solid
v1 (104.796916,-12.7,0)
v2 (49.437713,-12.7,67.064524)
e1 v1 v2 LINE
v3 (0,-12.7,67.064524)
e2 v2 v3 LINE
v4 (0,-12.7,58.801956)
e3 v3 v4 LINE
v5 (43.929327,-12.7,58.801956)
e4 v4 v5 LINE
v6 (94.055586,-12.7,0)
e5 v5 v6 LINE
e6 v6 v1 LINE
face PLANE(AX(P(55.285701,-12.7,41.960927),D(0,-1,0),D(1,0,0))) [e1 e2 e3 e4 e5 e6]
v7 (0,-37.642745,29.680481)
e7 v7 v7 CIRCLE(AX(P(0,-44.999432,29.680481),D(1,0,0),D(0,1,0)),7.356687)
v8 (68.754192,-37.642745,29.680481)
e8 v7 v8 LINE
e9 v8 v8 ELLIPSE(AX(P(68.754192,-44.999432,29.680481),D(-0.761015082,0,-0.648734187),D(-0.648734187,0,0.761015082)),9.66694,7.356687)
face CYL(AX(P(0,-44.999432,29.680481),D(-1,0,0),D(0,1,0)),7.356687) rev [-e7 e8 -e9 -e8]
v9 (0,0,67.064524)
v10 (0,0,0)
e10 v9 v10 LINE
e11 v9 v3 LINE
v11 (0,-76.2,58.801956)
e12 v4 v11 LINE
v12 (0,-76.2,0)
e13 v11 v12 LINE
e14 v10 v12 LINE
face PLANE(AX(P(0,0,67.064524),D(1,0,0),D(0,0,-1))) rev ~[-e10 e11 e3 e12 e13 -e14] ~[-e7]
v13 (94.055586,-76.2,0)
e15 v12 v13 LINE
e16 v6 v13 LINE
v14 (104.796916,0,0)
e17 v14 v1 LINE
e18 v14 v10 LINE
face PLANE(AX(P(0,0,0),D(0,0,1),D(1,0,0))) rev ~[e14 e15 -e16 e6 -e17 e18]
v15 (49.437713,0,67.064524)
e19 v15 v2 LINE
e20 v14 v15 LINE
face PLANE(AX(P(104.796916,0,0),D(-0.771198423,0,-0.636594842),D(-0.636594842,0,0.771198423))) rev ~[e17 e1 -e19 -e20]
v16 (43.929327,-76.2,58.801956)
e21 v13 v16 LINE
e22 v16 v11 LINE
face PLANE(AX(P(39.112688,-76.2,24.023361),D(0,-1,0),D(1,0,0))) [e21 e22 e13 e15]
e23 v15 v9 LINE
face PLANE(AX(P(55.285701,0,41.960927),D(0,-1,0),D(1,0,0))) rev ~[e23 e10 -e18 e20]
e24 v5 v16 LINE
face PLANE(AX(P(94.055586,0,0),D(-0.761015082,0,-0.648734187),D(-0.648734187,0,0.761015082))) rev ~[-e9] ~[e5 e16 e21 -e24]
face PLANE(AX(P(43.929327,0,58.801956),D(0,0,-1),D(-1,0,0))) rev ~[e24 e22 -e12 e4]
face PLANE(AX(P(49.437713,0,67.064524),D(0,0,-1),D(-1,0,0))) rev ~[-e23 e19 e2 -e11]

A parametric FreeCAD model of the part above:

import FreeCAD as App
import Part
import Sketcher
from FreeCAD import Vector
Q = App.Units.Quantity

doc = App.newDocument("Part")
body = doc.addObject("PartDesign::Body", "Body")

# Sketch on XZ plane
sketch1 = doc.addObject("Sketcher::SketchObject", "Sketch")
body.addObject(sketch1)
sketch1.AttachmentSupport = (doc.XZ_Plane, [""])
sketch1.MapMode = "FlatFace"
sketch1.addGeometry(Part.LineSegment(Vector(0, 59, 0), Vector(0, 0, 0)), False)
sketch1.addGeometry(Part.LineSegment(Vector(0, 0, 0), Vector(94, 0, 0)), False)
sketch1.addGeometry(Part.LineSegment(Vector(94, 0, 0), Vector(44, 59, 0)), False)
sketch1.addGeometry(Part.LineSegment(Vector(44, 59, 0), Vector(0, 59, 0)), False)
sketch1.addConstraint(Sketcher.Constraint("Coincident", 0, 2, 1, 1))
sketch1.addConstraint(Sketcher.Constraint("Coincident", 1, 2, 2, 1))
sketch1.addConstraint(Sketcher.Constraint("Coincident", 2, 2, 3, 1))
sketch1.addConstraint(Sketcher.Constraint("Coincident", 3, 2, 0, 1))
sketch1.addConstraint(Sketcher.Constraint("Vertical", 0))
sketch1.addConstraint(Sketcher.Constraint("Horizontal", 1))
sketch1.addConstraint(Sketcher.Constraint("Horizontal", 3))
sketch1.addConstraint(Sketcher.Constraint("Coincident", 0, 2, -1, 1))
sketch1.addConstraint(Sketcher.Constraint("DistanceX", 1, 1, 1, 2, Q("94.055586 mm")))
sketch1.addConstraint(Sketcher.Constraint("DistanceX", 3, 2, 3, 1, Q("43.929327 mm")))
sketch1.addConstraint(Sketcher.Constraint("DistanceY", 0, 2, 0, 1, Q("58.801956 mm")))
pad1 = doc.addObject("PartDesign::Pad", "Pad")
body.addObject(pad1)
pad1.Profile = sketch1
pad1.Length = Q("3 in")

# Sketch on XZ plane
sketch2 = doc.addObject("Sketcher::SketchObject", "Sketch001")
body.addObject(sketch2)
sketch2.AttachmentSupport = (doc.XZ_Plane, [""])
sketch2.MapMode = "FlatFace"
sketch2.addGeometry(Part.LineSegment(Vector(0, 67, 0), Vector(0, 59, 0)), False)
sketch2.addGeometry(Part.LineSegment(Vector(0, 59, 0), Vector(44, 59, 0)), False)
sketch2.addGeometry(Part.LineSegment(Vector(44, 59, 0), Vector(94, 0, 0)), False)
sketch2.addGeometry(Part.LineSegment(Vector(94, 0, 0), Vector(105, 0, 0)), False)
sketch2.addGeometry(Part.LineSegment(Vector(105, 0, 0), Vector(49, 67, 0)), False)
sketch2.addGeometry(Part.LineSegment(Vector(49, 67, 0), Vector(0, 67, 0)), False)
sketch2.addConstraint(Sketcher.Constraint("Coincident", 0, 2, 1, 1))
sketch2.addConstraint(Sketcher.Constraint("Coincident", 1, 2, 2, 1))
sketch2.addConstraint(Sketcher.Constraint("Coincident", 2, 2, 3, 1))
sketch2.addConstraint(Sketcher.Constraint("Coincident", 3, 2, 4, 1))
sketch2.addConstraint(Sketcher.Constraint("Coincident", 4, 2, 5, 1))
sketch2.addConstraint(Sketcher.Constraint("Coincident", 5, 2, 0, 1))
sketch2.addConstraint(Sketcher.Constraint("Vertical", 0))
sketch2.addConstraint(Sketcher.Constraint("Horizontal", 1))
sketch2.addConstraint(Sketcher.Constraint("Horizontal", 3))
sketch2.addConstraint(Sketcher.Constraint("Horizontal", 5))
sketch2.addConstraint(Sketcher.Constraint("PointOnObject", 0, 2, -2))
sketch2.addConstraint(Sketcher.Constraint("PointOnObject", 2, 2, -1))
sketch2.addConstraint(Sketcher.Constraint("DistanceX", 3, 1, 3, 2, Q("10.74133 mm")))
sketch2.addConstraint(Sketcher.Constraint("DistanceY", 0, 2, 0, 1, Q("8.262568 mm")))
sketch2.addConstraint(Sketcher.Constraint("Distance", 4, Q("86.961438 mm")))
sketch2.addConstraint(Sketcher.Constraint("DistanceX", 1, 1, 1, 2, Q("43.929327 mm")))
sketch2.addConstraint(Sketcher.Constraint("DistanceX", 5, 2, 5, 1, Q("49.437713 mm")))
sketch2.addConstraint(Sketcher.Constraint("DistanceX", 1, 2, 2, 2, Q("50.126259 mm")))
pad2 = doc.addObject("PartDesign::Pad", "Pad001")
body.addObject(pad2)
pad2.Profile = sketch2
pad2.Length = Q("0.5 in")

# Sketch on YZ plane
sketch3 = doc.addObject("Sketcher::SketchObject", "Sketch002")
body.addObject(sketch3)
sketch3.AttachmentSupport = (doc.YZ_Plane, [""])
sketch3.MapMode = "FlatFace"
sketch3.addGeometry(Part.Circle(Vector(-45, 30, 0), Vector(0, 0, 1), 7), False)
sketch3.addConstraint(Sketcher.Constraint("Diameter", 0, Q("14.713374 mm")))
sketch3.addConstraint(Sketcher.Constraint("DistanceY", -1, 1, 0, 3, Q("29.680481 mm")))
sketch3.addConstraint(Sketcher.Constraint("DistanceX", 0, 3, -1, 1, Q("44.999432 mm")))
pocket1 = doc.addObject("PartDesign::Pocket", "Pocket")
body.addObject(pocket1)
pocket1.Profile = sketch3
pocket1.Type = "ThroughAll"
pocket1.Reversed = True

doc.recompute()
